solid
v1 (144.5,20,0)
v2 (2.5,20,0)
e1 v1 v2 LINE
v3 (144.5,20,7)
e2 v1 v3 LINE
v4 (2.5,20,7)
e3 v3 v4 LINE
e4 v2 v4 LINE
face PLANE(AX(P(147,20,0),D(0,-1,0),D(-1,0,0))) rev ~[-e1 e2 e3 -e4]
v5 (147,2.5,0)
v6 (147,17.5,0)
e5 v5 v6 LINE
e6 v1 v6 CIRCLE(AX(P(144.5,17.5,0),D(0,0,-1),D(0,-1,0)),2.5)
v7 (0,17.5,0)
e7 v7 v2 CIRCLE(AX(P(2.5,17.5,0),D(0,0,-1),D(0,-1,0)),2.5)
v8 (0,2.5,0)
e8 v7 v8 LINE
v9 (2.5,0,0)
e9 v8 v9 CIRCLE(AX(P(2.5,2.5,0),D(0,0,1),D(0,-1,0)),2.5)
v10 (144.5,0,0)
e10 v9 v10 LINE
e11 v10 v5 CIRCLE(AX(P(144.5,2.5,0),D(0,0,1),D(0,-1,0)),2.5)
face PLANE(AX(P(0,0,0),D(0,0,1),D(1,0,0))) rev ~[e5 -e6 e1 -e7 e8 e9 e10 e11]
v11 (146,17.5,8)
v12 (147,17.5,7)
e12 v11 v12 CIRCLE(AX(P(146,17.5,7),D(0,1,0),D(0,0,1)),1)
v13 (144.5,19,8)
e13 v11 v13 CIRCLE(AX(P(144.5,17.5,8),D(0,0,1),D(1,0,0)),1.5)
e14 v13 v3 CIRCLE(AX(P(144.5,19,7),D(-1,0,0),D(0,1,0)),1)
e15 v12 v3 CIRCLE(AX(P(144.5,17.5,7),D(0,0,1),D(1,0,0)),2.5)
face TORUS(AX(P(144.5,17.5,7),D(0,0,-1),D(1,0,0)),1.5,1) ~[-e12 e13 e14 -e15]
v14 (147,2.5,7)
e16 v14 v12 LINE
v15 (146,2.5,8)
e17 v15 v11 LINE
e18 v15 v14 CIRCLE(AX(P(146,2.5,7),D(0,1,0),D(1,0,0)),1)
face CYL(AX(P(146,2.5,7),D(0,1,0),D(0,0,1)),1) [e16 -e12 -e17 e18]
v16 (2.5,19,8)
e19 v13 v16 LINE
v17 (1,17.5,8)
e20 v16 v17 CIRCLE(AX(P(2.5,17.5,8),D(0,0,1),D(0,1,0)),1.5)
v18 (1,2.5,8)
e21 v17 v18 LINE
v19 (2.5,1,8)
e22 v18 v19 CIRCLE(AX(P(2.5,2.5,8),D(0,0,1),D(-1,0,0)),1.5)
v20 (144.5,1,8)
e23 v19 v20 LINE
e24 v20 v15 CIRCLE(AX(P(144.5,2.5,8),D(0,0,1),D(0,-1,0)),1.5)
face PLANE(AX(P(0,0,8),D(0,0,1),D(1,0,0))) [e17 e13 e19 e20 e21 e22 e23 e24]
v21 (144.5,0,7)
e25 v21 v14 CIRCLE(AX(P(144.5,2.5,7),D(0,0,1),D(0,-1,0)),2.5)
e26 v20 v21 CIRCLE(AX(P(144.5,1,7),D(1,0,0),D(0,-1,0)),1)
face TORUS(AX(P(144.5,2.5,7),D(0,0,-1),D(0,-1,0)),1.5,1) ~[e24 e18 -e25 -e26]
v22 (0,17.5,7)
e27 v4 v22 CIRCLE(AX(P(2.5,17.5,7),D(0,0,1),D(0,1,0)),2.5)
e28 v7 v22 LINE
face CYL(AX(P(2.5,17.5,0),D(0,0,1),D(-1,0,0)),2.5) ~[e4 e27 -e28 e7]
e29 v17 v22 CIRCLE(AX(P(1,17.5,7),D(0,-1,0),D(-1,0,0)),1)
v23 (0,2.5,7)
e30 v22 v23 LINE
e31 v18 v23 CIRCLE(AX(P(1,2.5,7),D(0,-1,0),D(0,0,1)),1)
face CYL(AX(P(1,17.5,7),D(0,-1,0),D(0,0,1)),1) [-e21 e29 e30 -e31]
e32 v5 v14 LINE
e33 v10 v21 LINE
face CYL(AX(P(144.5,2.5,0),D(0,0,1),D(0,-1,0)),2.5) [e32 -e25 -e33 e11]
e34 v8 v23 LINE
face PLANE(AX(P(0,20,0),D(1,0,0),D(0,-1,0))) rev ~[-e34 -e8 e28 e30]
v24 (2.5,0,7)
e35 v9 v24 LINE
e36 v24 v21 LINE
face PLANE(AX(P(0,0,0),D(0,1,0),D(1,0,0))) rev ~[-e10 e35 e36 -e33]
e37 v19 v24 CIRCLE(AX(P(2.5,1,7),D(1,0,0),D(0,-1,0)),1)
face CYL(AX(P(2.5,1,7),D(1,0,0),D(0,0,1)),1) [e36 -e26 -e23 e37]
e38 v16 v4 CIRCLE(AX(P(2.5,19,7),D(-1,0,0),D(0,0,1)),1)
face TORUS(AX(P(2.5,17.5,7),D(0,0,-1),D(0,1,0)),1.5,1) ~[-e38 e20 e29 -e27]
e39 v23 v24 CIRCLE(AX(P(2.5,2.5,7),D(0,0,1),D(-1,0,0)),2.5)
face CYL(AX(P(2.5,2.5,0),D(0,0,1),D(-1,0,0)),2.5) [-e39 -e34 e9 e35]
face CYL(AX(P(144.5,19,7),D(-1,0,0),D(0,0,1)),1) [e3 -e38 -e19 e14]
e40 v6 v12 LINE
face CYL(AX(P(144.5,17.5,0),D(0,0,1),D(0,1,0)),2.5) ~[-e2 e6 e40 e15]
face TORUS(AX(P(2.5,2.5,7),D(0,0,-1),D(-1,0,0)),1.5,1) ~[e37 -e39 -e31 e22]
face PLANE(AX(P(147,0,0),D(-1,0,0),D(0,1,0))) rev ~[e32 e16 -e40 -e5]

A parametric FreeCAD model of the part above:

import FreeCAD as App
import Part
import Sketcher
from FreeCAD import Vector
Q = App.Units.Quantity


def edges_at(feature, points):
    """Names of the edges that pass closest to the given points."""
    edges = feature.Shape.Edges
    near = lambda p: min(range(len(edges)), key=lambda i: edges[i].distToShape(Part.Vertex(*p))[0])
    return sorted({f"Edge{near(p) + 1}" for p in points})


def add_polygon(sketch, points):
    """Adds a closed chain of lines whose ends are joined by coincident constraints."""
    first, n = sketch.GeometryCount, len(points)
    for a, b in zip(points, points[1:] + points[:1]):
        sketch.addGeometry(Part.LineSegment(App.Vector(*a, 0), App.Vector(*b, 0)), False)
    for i in range(n):
        sketch.addConstraint(Sketcher.Constraint("Coincident", first + i, 2, first + (i + 1) % n, 1))

doc = App.newDocument("Part")
body = doc.addObject("PartDesign::Body", "Body")

sketch1 = body.newObject("Sketcher::SketchObject", "Sketch")
sketch1.AttachmentSupport = (doc.getObject("XY_Plane"), [""])
sketch1.MapMode = "FlatFace"
add_polygon(sketch1, [(0, 20), (0, 0), (147, 0), (147, 20)])
sketch1.addConstraint([
    Sketcher.Constraint("Vertical", 0),
    Sketcher.Constraint("Horizontal", 1),
    Sketcher.Constraint("Vertical", 2),
    Sketcher.Constraint("Horizontal", 3),
    Sketcher.Constraint("Coincident", 0, 2, -1, 1),
    Sketcher.Constraint("DistanceX", 1, 1, 1, 2, Q("147 mm")),
    Sketcher.Constraint("DistanceY", 0, 2, 0, 1, Q("20 mm")),
])
pad1 = body.newObject("PartDesign::Pad", "Pad")
pad1.Profile = sketch1
pad1.Length = 8
doc.recompute()

fillet = body.newObject("PartDesign::Fillet", "Fillet")
fillet.Base = (pad1, edges_at(pad1, [
    (0, 0, 4),
    (0, 20, 4),
    (147, 0, 4),
    (147, 20, 4),
]))
fillet.Radius = 2.5
doc.recompute()

fillet2 = body.newObject("PartDesign::Fillet", "Fillet001")
fillet2.Base = (fillet, edges_at(fillet, [
    (146.268, 0.732, 8),
    (147, 10, 8),
    (146.268, 19.268, 8),
    (73.5, 20, 8),
    (0.732, 19.268, 8),
    (0, 10, 8),
    (0.732, 0.732, 8),
    (73.5, 0, 8),
]))
fillet2.Radius = 1

doc.recompute()
